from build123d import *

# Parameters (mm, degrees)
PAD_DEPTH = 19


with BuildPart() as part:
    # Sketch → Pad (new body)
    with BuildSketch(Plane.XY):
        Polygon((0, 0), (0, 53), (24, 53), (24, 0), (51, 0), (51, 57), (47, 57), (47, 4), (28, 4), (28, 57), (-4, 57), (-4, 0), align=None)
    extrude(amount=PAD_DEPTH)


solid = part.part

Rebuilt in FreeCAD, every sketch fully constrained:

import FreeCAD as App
import Part
import Sketcher

V = App.Vector
Q = App.Units.Quantity


def add_polygon(sketch, points):
    """Adds a closed chain of lines whose ends are joined by coincident constraints."""
    first, n = sketch.GeometryCount, len(points)
    for a, b in zip(points, points[1:] + points[:1]):
        sketch.addGeometry(Part.LineSegment(App.Vector(*a, 0), App.Vector(*b, 0)), False)
    for i in range(n):
        sketch.addConstraint(Sketcher.Constraint("Coincident", first + i, 2, first + (i + 1) % n, 1))

doc = App.newDocument("Part")
params = doc.addObject("Spreadsheet::Sheet", "Params")
for row, (alias, value) in enumerate([
    ("sketch1_width", "24 mm"),
    ("sketch1_width2", "27 mm"),
    ("sketch1_width3", "4 mm"),
    ("sketch1_width4", "19 mm"),
    ("sketch1_height", "53 mm"),
    ("pad1_length", "19 mm"),
], start=1):
    params.set(f"A{row}", alias)
    params.set(f"B{row}", "=" + value)
    params.setAlias(f"B{row}", alias)

body = doc.addObject("PartDesign::Body", "Body")

# Sketch on XY plane
sketch1 = body.newObject("Sketcher::SketchObject", "Sketch")
sketch1.AttachmentSupport = (doc.getObject("XY_Plane"), [""])
sketch1.MapMode = "FlatFace"
add_polygon(sketch1, [(0, 0), (0, 53), (24, 53), (24, 0), (51, 0), (51, 57), (47, 57), (47, 4), (28, 4), (28, 57), (-4, 57), (-4, 0)])  # lines 0-11
sketch1.addConstraint([
    Sketcher.Constraint("Vertical", 0),
    Sketcher.Constraint("Horizontal", 1),
    Sketcher.Constraint("Vertical", 2),
    Sketcher.Constraint("Horizontal", 3),
    Sketcher.Constraint("Vertical", 4),
    Sketcher.Constraint("Horizontal", 5),
    Sketcher.Constraint("Vertical", 6),
    Sketcher.Constraint("Horizontal", 7),
    Sketcher.Constraint("Vertical", 8),
    Sketcher.Constraint("Horizontal", 9),
    Sketcher.Constraint("Vertical", 10),
    Sketcher.Constraint("Horizontal", 11),
    Sketcher.Constraint("Coincident", 11, 2, -1, 1),
    Sketcher.Constraint("PointOnObject", 2, 2, -1),
    Sketcher.Constraint("Horizontal", 5, 2, 8, 2),
    Sketcher.Constraint("Equal", 5, 11),
    Sketcher.Constraint("Equal", 2, 6),
    Sketcher.Constraint("DistanceX", 1, 1, 1, 2, Q("24 mm")),
    Sketcher.Constraint("DistanceX", 3, 1, 3, 2, Q("27 mm")),
    Sketcher.Constraint("DistanceX", 5, 2, 5, 1, Q("4 mm")),
    Sketcher.Constraint("DistanceX", 7, 2, 7, 1, Q("19 mm")),
    Sketcher.Constraint("DistanceY", 0, 1, 0, 2, Q("53 mm")),
    Sketcher.Constraint("DistanceY", 4, 1, 4, 2, Q("57 mm")),
])
sketch1.setExpression("Constraints[29]", "Params.sketch1_width")
sketch1.setExpression("Constraints[30]", "Params.sketch1_width2")
sketch1.setExpression("Constraints[31]", "Params.sketch1_width3")
sketch1.setExpression("Constraints[32]", "Params.sketch1_width4")
sketch1.setExpression("Constraints[33]", "Params.sketch1_height")
pad1 = body.newObject("PartDesign::Pad", "Pad")
pad1.Profile = sketch1
pad1.setExpression("Length", "Params.pad1_length")

doc.recompute()
